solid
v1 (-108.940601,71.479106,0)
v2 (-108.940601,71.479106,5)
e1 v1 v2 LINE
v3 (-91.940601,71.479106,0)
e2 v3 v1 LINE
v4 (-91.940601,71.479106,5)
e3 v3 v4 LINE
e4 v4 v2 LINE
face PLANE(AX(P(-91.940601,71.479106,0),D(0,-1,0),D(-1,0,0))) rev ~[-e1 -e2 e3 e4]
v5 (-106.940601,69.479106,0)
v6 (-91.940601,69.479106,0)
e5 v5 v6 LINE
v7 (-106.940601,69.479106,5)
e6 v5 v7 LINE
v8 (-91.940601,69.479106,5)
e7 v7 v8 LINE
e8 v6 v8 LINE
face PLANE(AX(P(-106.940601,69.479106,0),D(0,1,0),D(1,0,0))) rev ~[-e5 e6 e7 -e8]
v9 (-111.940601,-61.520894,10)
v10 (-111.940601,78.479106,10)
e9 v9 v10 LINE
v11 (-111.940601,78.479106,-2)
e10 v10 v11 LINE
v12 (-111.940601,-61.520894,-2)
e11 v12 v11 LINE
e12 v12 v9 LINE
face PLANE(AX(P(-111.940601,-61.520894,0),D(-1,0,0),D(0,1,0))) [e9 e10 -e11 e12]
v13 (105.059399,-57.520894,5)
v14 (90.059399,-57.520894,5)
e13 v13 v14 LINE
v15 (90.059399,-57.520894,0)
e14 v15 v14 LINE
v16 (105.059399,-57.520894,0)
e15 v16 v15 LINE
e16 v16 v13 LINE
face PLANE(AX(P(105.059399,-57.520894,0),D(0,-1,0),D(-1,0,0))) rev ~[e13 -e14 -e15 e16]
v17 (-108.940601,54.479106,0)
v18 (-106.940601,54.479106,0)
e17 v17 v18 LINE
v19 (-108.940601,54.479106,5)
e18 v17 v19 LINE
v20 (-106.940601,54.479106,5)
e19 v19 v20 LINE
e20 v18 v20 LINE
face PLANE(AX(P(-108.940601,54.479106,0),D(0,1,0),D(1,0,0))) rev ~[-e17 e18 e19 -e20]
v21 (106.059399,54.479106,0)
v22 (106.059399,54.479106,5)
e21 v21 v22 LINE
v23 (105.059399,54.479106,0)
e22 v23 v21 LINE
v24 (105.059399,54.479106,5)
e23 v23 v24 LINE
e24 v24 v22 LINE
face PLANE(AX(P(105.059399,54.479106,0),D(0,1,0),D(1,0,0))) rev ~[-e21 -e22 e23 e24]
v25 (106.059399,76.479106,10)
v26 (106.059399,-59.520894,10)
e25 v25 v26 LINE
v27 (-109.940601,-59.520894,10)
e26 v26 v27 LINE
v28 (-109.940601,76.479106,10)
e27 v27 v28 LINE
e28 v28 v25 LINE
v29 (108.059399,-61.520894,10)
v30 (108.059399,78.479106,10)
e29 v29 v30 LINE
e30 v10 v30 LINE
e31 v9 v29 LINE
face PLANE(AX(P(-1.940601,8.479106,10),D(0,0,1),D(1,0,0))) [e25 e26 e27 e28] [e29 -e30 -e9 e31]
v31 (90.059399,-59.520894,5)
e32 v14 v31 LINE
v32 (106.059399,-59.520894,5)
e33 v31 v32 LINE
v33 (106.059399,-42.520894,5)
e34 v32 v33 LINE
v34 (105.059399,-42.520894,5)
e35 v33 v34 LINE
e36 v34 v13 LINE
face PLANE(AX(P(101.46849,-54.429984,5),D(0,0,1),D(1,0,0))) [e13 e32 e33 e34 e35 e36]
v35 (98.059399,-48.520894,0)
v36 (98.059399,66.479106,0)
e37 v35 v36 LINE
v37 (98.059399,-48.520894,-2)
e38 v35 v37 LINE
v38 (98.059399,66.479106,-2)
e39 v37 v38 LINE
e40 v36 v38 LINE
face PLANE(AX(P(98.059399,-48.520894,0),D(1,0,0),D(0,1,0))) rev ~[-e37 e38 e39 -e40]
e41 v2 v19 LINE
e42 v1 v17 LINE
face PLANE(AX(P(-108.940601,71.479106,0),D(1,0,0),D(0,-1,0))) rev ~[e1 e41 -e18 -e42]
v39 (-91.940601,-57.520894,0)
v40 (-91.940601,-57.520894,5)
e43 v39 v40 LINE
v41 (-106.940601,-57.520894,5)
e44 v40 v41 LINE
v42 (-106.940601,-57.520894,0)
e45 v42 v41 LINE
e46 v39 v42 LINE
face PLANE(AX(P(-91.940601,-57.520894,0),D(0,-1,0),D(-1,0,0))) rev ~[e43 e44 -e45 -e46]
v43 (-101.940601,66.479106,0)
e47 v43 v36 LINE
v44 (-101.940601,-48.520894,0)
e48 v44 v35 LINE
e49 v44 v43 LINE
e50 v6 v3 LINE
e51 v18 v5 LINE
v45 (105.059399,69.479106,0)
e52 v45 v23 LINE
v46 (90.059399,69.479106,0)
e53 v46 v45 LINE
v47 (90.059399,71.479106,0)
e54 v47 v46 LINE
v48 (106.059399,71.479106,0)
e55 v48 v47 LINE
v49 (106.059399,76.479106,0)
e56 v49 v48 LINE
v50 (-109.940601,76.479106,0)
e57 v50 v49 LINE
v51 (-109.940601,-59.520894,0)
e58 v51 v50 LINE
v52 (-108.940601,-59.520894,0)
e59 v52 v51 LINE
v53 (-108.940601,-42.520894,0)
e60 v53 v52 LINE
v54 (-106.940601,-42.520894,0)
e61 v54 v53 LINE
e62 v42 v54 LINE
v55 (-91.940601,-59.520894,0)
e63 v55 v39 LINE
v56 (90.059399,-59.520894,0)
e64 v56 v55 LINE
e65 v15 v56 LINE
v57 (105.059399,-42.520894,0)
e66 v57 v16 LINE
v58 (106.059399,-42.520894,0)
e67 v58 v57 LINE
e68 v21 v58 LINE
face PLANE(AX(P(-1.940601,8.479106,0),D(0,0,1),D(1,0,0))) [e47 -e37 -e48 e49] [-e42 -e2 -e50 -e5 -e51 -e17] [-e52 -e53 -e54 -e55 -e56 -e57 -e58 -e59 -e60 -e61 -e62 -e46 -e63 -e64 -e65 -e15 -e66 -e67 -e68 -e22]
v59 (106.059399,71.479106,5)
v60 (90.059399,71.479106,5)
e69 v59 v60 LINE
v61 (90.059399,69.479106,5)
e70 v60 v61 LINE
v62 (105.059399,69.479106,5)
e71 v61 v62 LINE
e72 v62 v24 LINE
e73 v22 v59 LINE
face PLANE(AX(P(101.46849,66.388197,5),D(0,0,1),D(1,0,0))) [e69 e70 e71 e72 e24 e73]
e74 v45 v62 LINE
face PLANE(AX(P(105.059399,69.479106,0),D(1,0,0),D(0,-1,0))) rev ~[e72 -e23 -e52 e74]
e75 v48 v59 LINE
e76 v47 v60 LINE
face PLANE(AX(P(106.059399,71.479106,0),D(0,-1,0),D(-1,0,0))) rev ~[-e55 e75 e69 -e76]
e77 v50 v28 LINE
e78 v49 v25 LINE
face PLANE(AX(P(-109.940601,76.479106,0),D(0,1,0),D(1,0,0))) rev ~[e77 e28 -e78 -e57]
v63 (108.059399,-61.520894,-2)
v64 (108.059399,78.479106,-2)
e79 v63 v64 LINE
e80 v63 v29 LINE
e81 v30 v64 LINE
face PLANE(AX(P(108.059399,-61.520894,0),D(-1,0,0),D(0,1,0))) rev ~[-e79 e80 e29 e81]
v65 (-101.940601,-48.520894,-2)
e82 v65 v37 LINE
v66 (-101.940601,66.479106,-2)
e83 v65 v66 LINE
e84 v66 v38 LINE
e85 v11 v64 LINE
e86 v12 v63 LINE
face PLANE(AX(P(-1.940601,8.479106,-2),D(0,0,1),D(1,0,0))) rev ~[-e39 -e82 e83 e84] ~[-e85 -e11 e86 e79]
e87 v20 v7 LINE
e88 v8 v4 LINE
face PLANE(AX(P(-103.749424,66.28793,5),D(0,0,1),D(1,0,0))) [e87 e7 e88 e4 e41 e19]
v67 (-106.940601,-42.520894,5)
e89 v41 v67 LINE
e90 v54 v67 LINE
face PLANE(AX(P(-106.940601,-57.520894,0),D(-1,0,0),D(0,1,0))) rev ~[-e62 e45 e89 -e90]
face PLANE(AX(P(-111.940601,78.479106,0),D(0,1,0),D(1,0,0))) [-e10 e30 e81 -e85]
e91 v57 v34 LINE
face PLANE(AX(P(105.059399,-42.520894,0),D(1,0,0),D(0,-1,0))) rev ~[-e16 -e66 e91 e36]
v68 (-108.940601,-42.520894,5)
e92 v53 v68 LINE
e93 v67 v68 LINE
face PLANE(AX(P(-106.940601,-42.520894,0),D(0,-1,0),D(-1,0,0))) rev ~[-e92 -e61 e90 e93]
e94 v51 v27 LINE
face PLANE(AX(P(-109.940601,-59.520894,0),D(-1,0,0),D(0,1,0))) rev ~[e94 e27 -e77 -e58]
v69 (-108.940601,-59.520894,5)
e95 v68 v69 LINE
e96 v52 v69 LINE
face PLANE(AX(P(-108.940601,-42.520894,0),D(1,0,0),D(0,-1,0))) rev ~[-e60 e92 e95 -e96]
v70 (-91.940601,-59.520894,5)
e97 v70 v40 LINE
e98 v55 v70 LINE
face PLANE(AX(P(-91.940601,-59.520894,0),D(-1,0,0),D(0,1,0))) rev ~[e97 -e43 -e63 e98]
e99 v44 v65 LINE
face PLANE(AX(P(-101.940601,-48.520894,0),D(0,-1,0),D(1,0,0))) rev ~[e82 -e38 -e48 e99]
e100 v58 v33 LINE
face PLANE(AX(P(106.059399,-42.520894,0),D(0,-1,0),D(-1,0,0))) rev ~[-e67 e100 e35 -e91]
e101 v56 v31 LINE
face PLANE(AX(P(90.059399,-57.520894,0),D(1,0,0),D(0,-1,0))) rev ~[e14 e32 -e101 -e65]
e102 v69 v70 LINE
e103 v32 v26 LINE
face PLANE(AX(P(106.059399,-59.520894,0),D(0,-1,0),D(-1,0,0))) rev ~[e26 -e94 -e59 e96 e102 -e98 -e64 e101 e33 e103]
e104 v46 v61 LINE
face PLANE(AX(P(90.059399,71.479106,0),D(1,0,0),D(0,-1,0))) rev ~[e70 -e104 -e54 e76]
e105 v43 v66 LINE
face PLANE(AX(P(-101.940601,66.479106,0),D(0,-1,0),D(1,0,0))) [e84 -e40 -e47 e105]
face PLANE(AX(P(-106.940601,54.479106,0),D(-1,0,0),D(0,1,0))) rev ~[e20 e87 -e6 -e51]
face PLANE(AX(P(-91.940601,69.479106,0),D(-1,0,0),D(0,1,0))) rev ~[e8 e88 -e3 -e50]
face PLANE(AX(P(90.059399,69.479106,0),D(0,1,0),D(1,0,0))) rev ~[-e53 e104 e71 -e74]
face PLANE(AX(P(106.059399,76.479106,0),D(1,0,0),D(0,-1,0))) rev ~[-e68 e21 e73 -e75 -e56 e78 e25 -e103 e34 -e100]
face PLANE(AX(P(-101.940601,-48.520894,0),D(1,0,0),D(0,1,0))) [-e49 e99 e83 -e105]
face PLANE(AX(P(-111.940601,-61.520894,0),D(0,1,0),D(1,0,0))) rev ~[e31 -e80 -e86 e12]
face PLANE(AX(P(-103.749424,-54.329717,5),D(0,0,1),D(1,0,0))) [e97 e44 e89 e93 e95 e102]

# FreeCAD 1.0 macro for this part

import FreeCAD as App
import Part
import Sketcher


def add_polygon(sketch, points):
    """Adds a closed chain of lines whose ends are joined by coincident constraints."""
    first, n = sketch.GeometryCount, len(points)
    for a, b in zip(points, points[1:] + points[:1]):
        sketch.addGeometry(Part.LineSegment(App.Vector(*a, 0), App.Vector(*b, 0)), False)
    for i in range(n):
        sketch.addConstraint(Sketcher.Constraint("Coincident", first + i, 2, first + (i + 1) % n, 1))

doc = App.newDocument("Part")
params = doc.addObject("Spreadsheet::Sheet", "Params")
for row, (alias, value) in enumerate([
    ("sketch1_width", "220 mm"),
    ("sketch1_width2", "200 mm"),
    ("sketch1_height", "140 mm"),
    ("sketch1_height2", "115 mm"),
    ("pad1_length", "2 mm"),
    ("sketch2_width", "2 mm"),
    ("sketch2_width2", "15 mm"),
    ("sketch2_width3", "1 mm"),
    ("pad2_length", "5 mm"),
    ("sketch3_width", "220 mm"),
    ("sketch3_width2", "216 mm"),
    ("sketch3_height", "140 mm"),
    ("sketch3_height2", "136 mm"),
    ("pad3_length", "10 mm"),
], start=1):
    params.set(f"A{row}", alias)
    params.set(f"B{row}", "=" + value)
    params.setAlias(f"B{row}", alias)

body = doc.addObject("PartDesign::Body", "Body")

sketch1 = doc.addObject("Sketcher::SketchObject", "Sketch")
body.addObject(sketch1)
sketch1.AttachmentSupport = (doc.XY_Plane, [""])
sketch1.MapMode = "FlatFace"
add_polygon(sketch1, [(-112, 78), (-112, -62), (108, -62), (108, 78)])
add_polygon(sketch1, [(98, -49), (-102, -49), (-102, 66), (98, 66)])
sketch1.addConstraint([
    Sketcher.Constraint("Vertical", 0),
    Sketcher.Constraint("Horizontal", 1),
    Sketcher.Constraint("Vertical", 2),
    Sketcher.Constraint("Horizontal", 3),
    Sketcher.Constraint("Horizontal", 4),
    Sketcher.Constraint("Vertical", 5),
    Sketcher.Constraint("Horizontal", 6),
    Sketcher.Constraint("Vertical", 7),
    Sketcher.Constraint("DistanceX", 1, 1, 1, 2, 220.0),
    Sketcher.Constraint("DistanceX", 4, 2, 4, 1, 200.0),
    Sketcher.Constraint("DistanceY", 0, 2, 0, 1, 140.0),
    Sketcher.Constraint("DistanceY", 5, 1, 5, 2, 115.0),
    Sketcher.Constraint("DistanceX", 0, 2, 4, 2, 10.0),
    Sketcher.Constraint("DistanceY", 0, 2, 4, 2, 13.0),
    Sketcher.Constraint("DistanceX", 0, 2, -1, 1, 111.940601),
    Sketcher.Constraint("DistanceY", 0, 2, -1, 1, 61.520894),
])
sketch1.setExpression("Constraints[16]", "Params.sketch1_width")
sketch1.setExpression("Constraints[17]", "Params.sketch1_width2")
sketch1.setExpression("Constraints[18]", "Params.sketch1_height")
sketch1.setExpression("Constraints[19]", "Params.sketch1_height2")
pad1 = doc.addObject("PartDesign::Pad", "Pad")
body.addObject(pad1)
pad1.Profile = sketch1
pad1.setExpression("Length", "Params.pad1_length")
pad1.Reversed = True

sketch2 = doc.addObject("Sketcher::SketchObject", "Sketch001")
body.addObject(sketch2)
sketch2.AttachmentSupport = (doc.XY_Plane, [""])
sketch2.MapMode = "FlatFace"
add_polygon(sketch2, [(-108.9, 54.5), (-106.9, 54.5), (-106.9, 69.5), (-91.9, 69.5), (-91.9, 71.5), (-108.9, 71.5)])
add_polygon(sketch2, [(-108.9, -59.5), (-91.9, -59.5), (-91.9, -57.5), (-106.9, -57.5), (-106.9, -42.5), (-108.9, -42.5)])
add_polygon(sketch2, [(90.1, 71.5), (90.1, 69.5), (105.1, 69.5), (105.1, 54.5), (106.1, 54.5), (106.1, 71.5)])
add_polygon(sketch2, [(106.1, -59.5), (106.1, -42.5), (105.1, -42.5), (105.1, -57.5), (90.1, -57.5), (90.1, -59.5)])
sketch2.addConstraint([
    Sketcher.Constraint("Horizontal", 0),
    Sketcher.Constraint("Vertical", 1),
    Sketcher.Constraint("Horizontal", 2),
    Sketcher.Constraint("Vertical", 3),
    Sketcher.Constraint("Horizontal", 4),
    Sketcher.Constraint("Vertical", 5),
    Sketcher.Constraint("Horizontal", 6),
    Sketcher.Constraint("Vertical", 7),
    Sketcher.Constraint("Horizontal", 8),
    Sketcher.Constraint("Vertical", 9),
    Sketcher.Constraint("Horizontal", 10),
    Sketcher.Constraint("Vertical", 11),
    Sketcher.Constraint("Vertical", 12),
    Sketcher.Constraint("Horizontal", 13),
    Sketcher.Constraint("Vertical", 14),
    Sketcher.Constraint("Horizontal", 15),
    Sketcher.Constraint("Vertical", 16),
    Sketcher.Constraint("Horizontal", 17),
    Sketcher.Constraint("Vertical", 18),
    Sketcher.Constraint("Horizontal", 19),
    Sketcher.Constraint("Vertical", 20),
    Sketcher.Constraint("Horizontal", 21),
    Sketcher.Constraint("Vertical", 22),
    Sketcher.Constraint("Horizontal", 23),
    Sketcher.Constraint("Horizontal", 2, 2, 12, 2),
    Sketcher.Constraint("Horizontal", 5, 2, 14, 2),
    Sketcher.Constraint("Horizontal", 4, 2, 16, 2),
    Sketcher.Constraint("Horizontal", 10, 2, 18, 2),
    Sketcher.Constraint("Horizontal", 8, 2, 20, 2),
    Sketcher.Constraint("Horizontal", 11, 2, 22, 2),
    Sketcher.Constraint("Vertical", 3, 2, 6, 2),
    Sketcher.Constraint("Vertical", 1, 2, 8, 2),
    Sketcher.Constraint("Vertical", 5, 2, 10, 2),
    Sketcher.Constraint("Vertical", 16, 2, 18, 2),
    Sketcher.Constraint("Vertical", 14, 2, 19, 2),
    Sketcher.Constraint("Vertical", 17, 2, 21, 2),
    Sketcher.Constraint("Equal", 8, 13),
    Sketcher.Constraint("Equal", 21, 1),
    Sketcher.Constraint("Equal", 10, 3),
    Sketcher.Constraint("Equal", 3, 7),
    Sketcher.Constraint("Equal", 1, 9),
    Sketcher.Constraint("DistanceX", 0, 1, 0, 2, 2.0),
    Sketcher.Constraint("DistanceX", 2, 1, 2, 2, 15.0),
    Sketcher.Constraint("DistanceX", 15, 1, 15, 2, 1.0),
    Sketcher.Constraint("DistanceY", 6, 2, 0, 2, 114.0),
    Sketcher.Constraint("DistanceX", 2, 2, 12, 2, 182.0),
    Sketcher.Constraint("DistanceX", 0, 2, -1, 1, 106.940601),
    Sketcher.Constraint("DistanceY", -1, 1, 0, 2, 54.479106),
])
sketch2.setExpression("Constraints[65]", "Params.sketch2_width")
sketch2.setExpression("Constraints[66]", "Params.sketch2_width2")
sketch2.setExpression("Constraints[67]", "Params.sketch2_width3")
pad2 = doc.addObject("PartDesign::Pad", "Pad001")
body.addObject(pad2)
pad2.Profile = sketch2
pad2.setExpression("Length", "Params.pad2_length")

sketch3 = doc.addObject("Sketcher::SketchObject", "Sketch002")
body.addObject(sketch3)
sketch3.AttachmentSupport = (doc.XY_Plane, [""])
sketch3.MapMode = "FlatFace"
add_polygon(sketch3, [(-112, 78), (-112, -62), (108, -62), (108, 78)])
add_polygon(sketch3, [(-110, 76), (106, 76), (106, -60), (-110, -60)])
sketch3.addConstraint([
    Sketcher.Constraint("Vertical", 0),
    Sketcher.Constraint("Horizontal", 1),
    Sketcher.Constraint("Vertical", 2),
    Sketcher.Constraint("Horizontal", 3),
    Sketcher.Constraint("Horizontal", 4),
    Sketcher.Constraint("Vertical", 5),
    Sketcher.Constraint("Horizontal", 6),
    Sketcher.Constraint("Vertical", 7),
    Sketcher.Constraint("DistanceX", 1, 1, 1, 2, 220.0),
    Sketcher.Constraint("DistanceX", 4, 1, 4, 2, 216.0),
    Sketcher.Constraint("DistanceY", 0, 2, 0, 1, 140.0),
    Sketcher.Constraint("DistanceY", 5, 2, 5, 1, 136.0),
    Sketcher.Constraint("DistanceX", 4, 2, 2, 2, 2.0),
    Sketcher.Constraint("DistanceY", 4, 2, 2, 2, 2.0),
    Sketcher.Constraint("DistanceX", 0, 2, -1, 1, 111.940601),
    Sketcher.Constraint("DistanceY", 0, 2, -1, 1, 61.520894),
])
sketch3.setExpression("Constraints[16]", "Params.sketch3_width")
sketch3.setExpression("Constraints[17]", "Params.sketch3_width2")
sketch3.setExpression("Constraints[18]", "Params.sketch3_height")
sketch3.setExpression("Constraints[19]", "Params.sketch3_height2")
pad3 = doc.addObject("PartDesign::Pad", "Pad002")
body.addObject(pad3)
pad3.Profile = sketch3
pad3.setExpression("Length", "Params.pad3_length")

doc.recompute()
